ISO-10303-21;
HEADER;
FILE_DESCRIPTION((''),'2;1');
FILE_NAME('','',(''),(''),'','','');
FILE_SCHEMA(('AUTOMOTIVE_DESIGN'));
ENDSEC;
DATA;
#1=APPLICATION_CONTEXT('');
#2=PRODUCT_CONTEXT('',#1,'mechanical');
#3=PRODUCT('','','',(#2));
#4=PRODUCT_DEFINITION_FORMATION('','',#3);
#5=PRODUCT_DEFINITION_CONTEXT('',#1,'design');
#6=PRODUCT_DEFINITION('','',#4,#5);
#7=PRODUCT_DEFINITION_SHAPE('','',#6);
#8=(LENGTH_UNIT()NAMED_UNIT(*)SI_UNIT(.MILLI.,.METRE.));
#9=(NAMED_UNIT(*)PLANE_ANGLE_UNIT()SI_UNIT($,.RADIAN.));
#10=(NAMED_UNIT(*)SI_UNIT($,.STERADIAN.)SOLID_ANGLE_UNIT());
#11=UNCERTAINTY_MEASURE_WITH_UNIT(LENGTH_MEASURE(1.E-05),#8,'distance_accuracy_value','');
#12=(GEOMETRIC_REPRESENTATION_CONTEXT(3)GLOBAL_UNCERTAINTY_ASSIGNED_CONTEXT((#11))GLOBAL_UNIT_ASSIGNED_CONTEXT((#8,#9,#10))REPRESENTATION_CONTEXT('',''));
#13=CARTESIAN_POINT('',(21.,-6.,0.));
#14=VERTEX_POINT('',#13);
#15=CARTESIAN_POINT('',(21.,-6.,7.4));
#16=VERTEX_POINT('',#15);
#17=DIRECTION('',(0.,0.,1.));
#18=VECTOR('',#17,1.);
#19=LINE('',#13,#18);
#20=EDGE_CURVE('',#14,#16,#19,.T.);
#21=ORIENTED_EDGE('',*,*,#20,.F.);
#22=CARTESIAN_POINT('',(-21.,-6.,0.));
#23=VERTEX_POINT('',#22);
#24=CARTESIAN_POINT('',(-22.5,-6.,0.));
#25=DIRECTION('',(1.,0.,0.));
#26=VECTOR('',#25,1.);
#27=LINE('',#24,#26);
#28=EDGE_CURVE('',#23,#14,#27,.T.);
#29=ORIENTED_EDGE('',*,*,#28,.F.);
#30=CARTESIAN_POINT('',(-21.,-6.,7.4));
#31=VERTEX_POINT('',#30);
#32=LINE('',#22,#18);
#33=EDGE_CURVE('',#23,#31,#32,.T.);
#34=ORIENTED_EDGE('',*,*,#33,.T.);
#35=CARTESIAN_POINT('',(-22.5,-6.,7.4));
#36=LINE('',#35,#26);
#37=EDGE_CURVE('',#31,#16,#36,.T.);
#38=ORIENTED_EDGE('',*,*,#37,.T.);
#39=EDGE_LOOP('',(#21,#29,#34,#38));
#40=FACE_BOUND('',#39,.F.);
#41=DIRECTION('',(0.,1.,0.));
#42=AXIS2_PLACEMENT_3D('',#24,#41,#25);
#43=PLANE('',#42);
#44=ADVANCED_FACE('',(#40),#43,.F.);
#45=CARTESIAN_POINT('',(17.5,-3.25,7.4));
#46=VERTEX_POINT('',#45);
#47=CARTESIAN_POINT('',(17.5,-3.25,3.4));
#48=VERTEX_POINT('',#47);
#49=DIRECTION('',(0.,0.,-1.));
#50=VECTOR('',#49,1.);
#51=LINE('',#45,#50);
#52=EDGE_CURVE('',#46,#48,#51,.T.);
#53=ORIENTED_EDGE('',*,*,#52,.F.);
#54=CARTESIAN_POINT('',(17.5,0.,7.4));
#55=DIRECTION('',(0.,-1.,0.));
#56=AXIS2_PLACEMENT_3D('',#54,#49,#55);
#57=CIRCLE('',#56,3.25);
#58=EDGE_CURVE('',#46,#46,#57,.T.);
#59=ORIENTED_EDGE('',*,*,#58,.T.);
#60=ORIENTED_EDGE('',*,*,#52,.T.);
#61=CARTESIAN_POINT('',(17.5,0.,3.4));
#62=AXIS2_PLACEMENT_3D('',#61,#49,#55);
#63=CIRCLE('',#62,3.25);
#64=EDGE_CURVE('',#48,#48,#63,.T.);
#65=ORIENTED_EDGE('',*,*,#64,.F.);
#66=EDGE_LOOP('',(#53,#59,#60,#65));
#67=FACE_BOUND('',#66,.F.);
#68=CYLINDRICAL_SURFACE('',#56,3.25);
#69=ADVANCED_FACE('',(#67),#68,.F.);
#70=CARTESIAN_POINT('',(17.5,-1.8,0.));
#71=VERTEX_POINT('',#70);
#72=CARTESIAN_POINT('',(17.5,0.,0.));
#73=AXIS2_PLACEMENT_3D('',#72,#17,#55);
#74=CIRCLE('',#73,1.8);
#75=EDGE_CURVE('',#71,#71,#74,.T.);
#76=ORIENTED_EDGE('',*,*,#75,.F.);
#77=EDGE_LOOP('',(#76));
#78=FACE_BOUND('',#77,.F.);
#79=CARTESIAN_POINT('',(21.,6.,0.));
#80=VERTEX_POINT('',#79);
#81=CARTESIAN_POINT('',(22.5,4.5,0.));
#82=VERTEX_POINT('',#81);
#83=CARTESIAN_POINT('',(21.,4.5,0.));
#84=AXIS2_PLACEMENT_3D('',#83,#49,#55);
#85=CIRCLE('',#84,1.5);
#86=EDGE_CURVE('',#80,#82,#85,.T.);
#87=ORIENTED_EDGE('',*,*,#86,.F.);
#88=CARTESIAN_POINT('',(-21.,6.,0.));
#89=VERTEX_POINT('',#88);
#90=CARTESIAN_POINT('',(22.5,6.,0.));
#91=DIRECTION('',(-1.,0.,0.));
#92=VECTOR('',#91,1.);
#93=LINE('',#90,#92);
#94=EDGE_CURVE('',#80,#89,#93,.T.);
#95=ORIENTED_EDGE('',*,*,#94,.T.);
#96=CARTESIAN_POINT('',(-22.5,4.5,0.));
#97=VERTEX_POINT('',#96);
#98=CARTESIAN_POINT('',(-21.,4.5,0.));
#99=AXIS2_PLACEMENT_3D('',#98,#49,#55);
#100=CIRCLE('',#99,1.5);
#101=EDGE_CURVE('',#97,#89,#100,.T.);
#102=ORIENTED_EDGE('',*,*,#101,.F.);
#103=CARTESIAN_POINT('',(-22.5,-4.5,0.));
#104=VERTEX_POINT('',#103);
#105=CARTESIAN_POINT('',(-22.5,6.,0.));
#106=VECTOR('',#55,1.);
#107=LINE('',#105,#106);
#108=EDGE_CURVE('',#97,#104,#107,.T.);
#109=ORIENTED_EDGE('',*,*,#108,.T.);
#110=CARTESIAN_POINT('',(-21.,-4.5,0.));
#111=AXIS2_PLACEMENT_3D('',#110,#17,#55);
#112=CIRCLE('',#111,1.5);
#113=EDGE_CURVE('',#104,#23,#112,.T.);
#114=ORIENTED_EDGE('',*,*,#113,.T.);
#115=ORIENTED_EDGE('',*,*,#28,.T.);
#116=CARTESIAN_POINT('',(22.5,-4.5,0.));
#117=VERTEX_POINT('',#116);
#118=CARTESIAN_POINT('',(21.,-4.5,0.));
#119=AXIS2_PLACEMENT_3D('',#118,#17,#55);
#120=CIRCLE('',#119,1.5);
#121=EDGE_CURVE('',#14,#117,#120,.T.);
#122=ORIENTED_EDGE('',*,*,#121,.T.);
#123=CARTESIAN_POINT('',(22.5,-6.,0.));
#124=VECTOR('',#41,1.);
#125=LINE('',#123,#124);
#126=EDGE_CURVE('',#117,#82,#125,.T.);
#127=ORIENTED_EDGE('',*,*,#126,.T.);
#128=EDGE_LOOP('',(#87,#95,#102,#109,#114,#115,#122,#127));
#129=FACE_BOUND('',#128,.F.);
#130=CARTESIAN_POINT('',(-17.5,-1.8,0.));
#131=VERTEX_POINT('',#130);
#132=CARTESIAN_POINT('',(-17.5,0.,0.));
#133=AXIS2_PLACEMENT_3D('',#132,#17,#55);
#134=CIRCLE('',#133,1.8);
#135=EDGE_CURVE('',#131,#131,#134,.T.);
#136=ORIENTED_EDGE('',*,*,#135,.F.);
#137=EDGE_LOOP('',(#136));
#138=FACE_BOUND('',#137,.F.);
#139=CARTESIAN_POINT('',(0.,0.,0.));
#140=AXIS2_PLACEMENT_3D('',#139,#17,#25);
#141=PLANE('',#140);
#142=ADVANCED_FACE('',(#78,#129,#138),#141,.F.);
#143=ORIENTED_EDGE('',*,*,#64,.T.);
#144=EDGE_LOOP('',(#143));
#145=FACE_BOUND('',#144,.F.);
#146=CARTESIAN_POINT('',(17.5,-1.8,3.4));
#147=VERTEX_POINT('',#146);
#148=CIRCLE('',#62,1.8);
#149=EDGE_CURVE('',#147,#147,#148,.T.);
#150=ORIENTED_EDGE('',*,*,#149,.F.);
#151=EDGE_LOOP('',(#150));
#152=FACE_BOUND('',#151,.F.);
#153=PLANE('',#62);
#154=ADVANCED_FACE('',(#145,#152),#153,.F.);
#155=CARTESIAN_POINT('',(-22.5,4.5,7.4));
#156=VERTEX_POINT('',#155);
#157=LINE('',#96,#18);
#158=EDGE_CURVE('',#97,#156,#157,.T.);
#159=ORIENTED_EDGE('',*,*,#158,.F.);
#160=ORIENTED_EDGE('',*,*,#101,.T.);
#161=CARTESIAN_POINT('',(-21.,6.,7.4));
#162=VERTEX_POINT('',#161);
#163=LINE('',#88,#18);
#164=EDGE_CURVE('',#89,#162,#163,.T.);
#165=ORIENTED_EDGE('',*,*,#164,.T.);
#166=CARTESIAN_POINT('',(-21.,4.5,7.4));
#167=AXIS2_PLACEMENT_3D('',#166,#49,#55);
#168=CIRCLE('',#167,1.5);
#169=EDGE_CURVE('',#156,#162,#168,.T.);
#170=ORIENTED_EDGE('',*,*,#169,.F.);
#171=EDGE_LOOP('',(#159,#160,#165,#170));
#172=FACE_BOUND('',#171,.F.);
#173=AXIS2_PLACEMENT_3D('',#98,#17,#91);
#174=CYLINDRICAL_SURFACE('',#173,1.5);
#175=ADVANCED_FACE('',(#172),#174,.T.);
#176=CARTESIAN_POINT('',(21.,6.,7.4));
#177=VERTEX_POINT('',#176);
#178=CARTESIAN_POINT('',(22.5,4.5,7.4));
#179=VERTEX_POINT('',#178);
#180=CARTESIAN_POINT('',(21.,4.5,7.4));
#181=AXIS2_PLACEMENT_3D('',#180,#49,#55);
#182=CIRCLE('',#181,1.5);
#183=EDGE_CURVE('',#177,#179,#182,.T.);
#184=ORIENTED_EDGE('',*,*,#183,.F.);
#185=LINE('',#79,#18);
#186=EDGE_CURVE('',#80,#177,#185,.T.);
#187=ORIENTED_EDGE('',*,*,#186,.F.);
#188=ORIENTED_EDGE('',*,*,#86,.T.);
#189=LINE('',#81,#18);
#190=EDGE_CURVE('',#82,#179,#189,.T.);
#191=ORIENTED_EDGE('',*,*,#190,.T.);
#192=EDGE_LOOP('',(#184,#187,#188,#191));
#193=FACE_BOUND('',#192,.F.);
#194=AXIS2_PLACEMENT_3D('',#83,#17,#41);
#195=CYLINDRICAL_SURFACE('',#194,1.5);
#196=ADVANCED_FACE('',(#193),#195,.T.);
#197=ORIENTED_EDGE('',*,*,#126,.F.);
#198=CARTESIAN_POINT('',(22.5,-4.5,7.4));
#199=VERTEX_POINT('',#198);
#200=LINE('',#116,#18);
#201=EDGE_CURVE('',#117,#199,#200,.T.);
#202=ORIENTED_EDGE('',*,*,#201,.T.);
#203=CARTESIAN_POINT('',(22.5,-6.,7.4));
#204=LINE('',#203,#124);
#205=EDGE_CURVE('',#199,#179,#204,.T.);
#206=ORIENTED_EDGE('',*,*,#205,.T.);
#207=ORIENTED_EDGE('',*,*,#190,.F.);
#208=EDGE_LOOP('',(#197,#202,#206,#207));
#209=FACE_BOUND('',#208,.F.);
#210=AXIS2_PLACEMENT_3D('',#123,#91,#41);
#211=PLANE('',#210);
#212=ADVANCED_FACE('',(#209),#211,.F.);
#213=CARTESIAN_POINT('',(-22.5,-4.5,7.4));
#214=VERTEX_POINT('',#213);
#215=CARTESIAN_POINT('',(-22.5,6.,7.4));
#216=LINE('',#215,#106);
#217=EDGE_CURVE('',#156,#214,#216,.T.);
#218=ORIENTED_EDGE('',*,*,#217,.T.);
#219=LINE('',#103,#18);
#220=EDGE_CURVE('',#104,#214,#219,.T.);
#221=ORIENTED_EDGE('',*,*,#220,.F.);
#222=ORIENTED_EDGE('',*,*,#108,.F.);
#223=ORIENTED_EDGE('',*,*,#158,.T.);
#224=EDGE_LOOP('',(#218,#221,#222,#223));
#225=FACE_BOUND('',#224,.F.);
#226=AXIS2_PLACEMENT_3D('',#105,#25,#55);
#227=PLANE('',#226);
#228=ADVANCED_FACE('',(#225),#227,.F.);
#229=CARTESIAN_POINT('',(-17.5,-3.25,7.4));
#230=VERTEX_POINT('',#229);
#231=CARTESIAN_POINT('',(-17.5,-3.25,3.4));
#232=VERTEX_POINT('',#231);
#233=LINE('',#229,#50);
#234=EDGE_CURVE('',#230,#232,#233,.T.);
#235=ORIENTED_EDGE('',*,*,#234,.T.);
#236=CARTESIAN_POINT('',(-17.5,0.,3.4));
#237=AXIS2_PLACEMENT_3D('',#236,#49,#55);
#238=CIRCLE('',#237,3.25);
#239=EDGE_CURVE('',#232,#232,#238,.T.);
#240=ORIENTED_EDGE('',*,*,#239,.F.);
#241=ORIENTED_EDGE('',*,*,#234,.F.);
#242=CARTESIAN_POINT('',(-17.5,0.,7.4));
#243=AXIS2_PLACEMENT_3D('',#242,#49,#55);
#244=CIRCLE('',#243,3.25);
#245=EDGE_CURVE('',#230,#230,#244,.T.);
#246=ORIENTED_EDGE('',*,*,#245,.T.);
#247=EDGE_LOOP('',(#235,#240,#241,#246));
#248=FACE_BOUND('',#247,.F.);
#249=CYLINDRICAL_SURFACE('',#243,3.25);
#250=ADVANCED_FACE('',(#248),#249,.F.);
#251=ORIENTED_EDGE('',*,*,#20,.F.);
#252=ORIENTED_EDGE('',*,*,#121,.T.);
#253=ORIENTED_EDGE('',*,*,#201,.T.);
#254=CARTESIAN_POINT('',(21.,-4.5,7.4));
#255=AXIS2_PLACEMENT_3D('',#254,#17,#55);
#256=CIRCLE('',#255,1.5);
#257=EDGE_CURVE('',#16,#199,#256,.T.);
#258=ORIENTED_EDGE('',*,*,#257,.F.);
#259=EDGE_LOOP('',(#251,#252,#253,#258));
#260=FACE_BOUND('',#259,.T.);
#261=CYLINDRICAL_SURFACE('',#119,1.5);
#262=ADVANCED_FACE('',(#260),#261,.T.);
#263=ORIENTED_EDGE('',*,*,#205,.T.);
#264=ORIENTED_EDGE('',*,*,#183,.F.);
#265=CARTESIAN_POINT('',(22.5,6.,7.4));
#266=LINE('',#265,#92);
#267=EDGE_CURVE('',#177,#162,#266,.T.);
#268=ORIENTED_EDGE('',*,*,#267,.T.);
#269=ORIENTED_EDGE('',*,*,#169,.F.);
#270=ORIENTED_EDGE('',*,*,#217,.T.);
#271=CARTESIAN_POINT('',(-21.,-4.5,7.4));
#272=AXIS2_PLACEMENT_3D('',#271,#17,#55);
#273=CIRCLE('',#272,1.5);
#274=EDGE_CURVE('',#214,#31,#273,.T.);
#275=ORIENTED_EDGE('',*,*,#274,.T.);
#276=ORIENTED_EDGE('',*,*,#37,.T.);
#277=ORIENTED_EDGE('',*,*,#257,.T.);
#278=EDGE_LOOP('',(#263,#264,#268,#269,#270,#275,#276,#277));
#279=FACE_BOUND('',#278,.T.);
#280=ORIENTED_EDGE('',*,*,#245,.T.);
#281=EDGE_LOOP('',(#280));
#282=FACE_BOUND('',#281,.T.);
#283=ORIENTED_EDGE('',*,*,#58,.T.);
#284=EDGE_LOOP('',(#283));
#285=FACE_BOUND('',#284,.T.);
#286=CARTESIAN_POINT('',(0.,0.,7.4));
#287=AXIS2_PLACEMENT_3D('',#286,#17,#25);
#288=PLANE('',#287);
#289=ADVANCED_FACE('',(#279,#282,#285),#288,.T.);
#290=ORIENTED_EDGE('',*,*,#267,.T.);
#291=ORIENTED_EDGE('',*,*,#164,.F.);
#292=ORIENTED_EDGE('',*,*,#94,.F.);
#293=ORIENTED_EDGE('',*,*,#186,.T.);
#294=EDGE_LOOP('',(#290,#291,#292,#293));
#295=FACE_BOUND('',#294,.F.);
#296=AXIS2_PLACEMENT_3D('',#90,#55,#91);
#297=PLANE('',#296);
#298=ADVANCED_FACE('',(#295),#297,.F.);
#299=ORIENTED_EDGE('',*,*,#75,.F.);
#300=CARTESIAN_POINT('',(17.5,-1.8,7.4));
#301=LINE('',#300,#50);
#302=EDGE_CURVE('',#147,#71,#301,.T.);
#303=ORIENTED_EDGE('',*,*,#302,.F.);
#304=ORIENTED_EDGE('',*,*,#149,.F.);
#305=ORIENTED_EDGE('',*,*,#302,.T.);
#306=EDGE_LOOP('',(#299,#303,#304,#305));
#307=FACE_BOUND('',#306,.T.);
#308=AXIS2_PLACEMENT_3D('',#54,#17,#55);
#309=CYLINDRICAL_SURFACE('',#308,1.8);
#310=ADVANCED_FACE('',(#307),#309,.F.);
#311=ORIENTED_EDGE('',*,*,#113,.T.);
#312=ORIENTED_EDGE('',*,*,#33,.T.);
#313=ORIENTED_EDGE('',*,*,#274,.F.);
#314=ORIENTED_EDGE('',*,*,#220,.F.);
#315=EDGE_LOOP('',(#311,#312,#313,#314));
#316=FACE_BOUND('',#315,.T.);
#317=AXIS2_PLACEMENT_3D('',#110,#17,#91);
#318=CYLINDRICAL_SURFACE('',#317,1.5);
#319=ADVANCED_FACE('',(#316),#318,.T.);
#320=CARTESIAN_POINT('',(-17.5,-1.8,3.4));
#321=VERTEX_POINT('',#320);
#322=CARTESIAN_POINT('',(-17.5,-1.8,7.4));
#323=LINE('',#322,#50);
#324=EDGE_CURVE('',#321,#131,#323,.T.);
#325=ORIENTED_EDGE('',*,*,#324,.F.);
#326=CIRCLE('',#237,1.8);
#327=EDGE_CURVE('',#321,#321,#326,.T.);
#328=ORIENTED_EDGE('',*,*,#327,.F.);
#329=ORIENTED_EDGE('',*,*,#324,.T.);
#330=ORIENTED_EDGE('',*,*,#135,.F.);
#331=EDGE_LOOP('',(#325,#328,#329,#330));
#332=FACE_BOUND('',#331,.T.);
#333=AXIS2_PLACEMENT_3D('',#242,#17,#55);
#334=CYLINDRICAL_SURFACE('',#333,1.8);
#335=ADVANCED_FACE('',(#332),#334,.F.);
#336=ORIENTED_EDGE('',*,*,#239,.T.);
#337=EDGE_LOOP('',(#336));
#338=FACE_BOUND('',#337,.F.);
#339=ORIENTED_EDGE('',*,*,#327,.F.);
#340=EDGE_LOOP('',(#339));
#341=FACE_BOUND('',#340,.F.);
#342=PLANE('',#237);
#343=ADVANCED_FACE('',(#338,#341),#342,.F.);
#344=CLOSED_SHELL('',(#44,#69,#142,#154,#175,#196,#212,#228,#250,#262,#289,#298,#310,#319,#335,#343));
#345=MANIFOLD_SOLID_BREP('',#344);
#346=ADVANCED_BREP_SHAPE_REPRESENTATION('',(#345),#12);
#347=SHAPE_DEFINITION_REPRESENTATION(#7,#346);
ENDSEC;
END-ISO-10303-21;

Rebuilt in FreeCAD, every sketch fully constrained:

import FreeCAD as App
import Part
import Sketcher
from FreeCAD import Vector
Q = App.Units.Quantity


def edges_at(feature, points):
    """Names of the edges that pass closest to the given points."""
    edges = feature.Shape.Edges
    near = lambda p: min(range(len(edges)), key=lambda i: edges[i].distToShape(Part.Vertex(*p))[0])
    return sorted({f"Edge{near(p) + 1}" for p in points})


def add_polygon(sketch, points):
    """Adds a closed chain of lines whose ends are joined by coincident constraints."""
    first, n = sketch.GeometryCount, len(points)
    for a, b in zip(points, points[1:] + points[:1]):
        sketch.addGeometry(Part.LineSegment(App.Vector(*a, 0), App.Vector(*b, 0)), False)
    for i in range(n):
        sketch.addConstraint(Sketcher.Constraint("Coincident", first + i, 2, first + (i + 1) % n, 1))

doc = App.newDocument("Part")
body = doc.addObject("PartDesign::Body", "Body")

# Sketch on XY plane
sketch1 = body.newObject("Sketcher::SketchObject", "Sketch")
sketch1.AttachmentSupport = (doc.getObject("XY_Plane"), [""])
sketch1.MapMode = "FlatFace"
add_polygon(sketch1, [(22.5, 6), (-22.5, 6), (-22.5, -6), (22.5, -6)])  # lines 0-3
sketch1.addConstraint(Sketcher.Constraint("Horizontal", 0))
sketch1.addConstraint(Sketcher.Constraint("Vertical", 1))
sketch1.addConstraint(Sketcher.Constraint("Horizontal", 2))
sketch1.addConstraint(Sketcher.Constraint("Vertical", 3))
sketch1.addConstraint(Sketcher.Constraint("Symmetric", 0, 2, 2, 2, -1, 1))
sketch1.addConstraint(Sketcher.Constraint("DistanceX", 0, 2, 0, 1, Q("45 mm")))
sketch1.addConstraint(Sketcher.Constraint("DistanceY", 1, 2, 1, 1, Q("12 mm")))
pad1 = body.newObject("PartDesign::Pad", "Pad")
pad1.Profile = sketch1
pad1.Length = 7.4

# Sketch on XY plane
sketch2 = body.newObject("Sketcher::SketchObject", "Sketch001")
sketch2.AttachmentSupport = (doc.getObject("XY_Plane"), [""])
sketch2.MapMode = "FlatFace"
sketch2.AttachmentOffset = App.Placement(Vector(0, 0, 7.4), App.Rotation())
sketch2.addGeometry(Part.Circle(Vector(17.5, 0, 0), Vector(0, 0, 1), 1.8), False)
sketch2.addConstraint(Sketcher.Constraint("PointOnObject", 0, 3, -1))
sketch2.addConstraint(Sketcher.Constraint("Diameter", 0, Q("3.6 mm")))
sketch2.addConstraint(Sketcher.Constraint("DistanceX", -1, 1, 0, 3, Q("17.5 mm")))
doc.recompute()
hole = body.newObject("PartDesign::Hole", "Hole")
hole.Profile = sketch2
hole.ThreadType = "None"
hole.Diameter = 3.6
hole.DepthType = "ThroughAll"
hole.HoleCutType = "Counterbore"
hole.HoleCutDiameter = 6.5
hole.HoleCutDepth = 4

# Sketch on XY plane
sketch3 = body.newObject("Sketcher::SketchObject", "Sketch002")
sketch3.AttachmentSupport = (doc.getObject("XY_Plane"), [""])
sketch3.MapMode = "FlatFace"
sketch3.AttachmentOffset = App.Placement(Vector(0, 0, 7.4), App.Rotation())
sketch3.addGeometry(Part.Circle(Vector(-17.5, 0, 0), Vector(0, 0, 1), 1.8), False)
sketch3.addConstraint(Sketcher.Constraint("PointOnObject", 0, 3, -1))
sketch3.addConstraint(Sketcher.Constraint("Diameter", 0, Q("3.6 mm")))
sketch3.addConstraint(Sketcher.Constraint("DistanceX", 0, 3, -1, 1, Q("17.5 mm")))
doc.recompute()
hole2 = body.newObject("PartDesign::Hole", "Hole001")
hole2.Profile = sketch3
hole2.ThreadType = "None"
hole2.Diameter = 3.6
hole2.DepthType = "ThroughAll"
hole2.HoleCutType = "Counterbore"
hole2.HoleCutDiameter = 6.5
hole2.HoleCutDepth = 4
doc.recompute()

fillet = body.newObject("PartDesign::Fillet", "Fillet")
fillet.Base = (hole2, edges_at(hole2, [
    (-22.5, -6, 3.7),
    (22.5, -6, 3.7),
    (22.5, 6, 3.7),
    (-22.5, 6, 3.7),
]))
fillet.Radius = 1.5

doc.recompute()
